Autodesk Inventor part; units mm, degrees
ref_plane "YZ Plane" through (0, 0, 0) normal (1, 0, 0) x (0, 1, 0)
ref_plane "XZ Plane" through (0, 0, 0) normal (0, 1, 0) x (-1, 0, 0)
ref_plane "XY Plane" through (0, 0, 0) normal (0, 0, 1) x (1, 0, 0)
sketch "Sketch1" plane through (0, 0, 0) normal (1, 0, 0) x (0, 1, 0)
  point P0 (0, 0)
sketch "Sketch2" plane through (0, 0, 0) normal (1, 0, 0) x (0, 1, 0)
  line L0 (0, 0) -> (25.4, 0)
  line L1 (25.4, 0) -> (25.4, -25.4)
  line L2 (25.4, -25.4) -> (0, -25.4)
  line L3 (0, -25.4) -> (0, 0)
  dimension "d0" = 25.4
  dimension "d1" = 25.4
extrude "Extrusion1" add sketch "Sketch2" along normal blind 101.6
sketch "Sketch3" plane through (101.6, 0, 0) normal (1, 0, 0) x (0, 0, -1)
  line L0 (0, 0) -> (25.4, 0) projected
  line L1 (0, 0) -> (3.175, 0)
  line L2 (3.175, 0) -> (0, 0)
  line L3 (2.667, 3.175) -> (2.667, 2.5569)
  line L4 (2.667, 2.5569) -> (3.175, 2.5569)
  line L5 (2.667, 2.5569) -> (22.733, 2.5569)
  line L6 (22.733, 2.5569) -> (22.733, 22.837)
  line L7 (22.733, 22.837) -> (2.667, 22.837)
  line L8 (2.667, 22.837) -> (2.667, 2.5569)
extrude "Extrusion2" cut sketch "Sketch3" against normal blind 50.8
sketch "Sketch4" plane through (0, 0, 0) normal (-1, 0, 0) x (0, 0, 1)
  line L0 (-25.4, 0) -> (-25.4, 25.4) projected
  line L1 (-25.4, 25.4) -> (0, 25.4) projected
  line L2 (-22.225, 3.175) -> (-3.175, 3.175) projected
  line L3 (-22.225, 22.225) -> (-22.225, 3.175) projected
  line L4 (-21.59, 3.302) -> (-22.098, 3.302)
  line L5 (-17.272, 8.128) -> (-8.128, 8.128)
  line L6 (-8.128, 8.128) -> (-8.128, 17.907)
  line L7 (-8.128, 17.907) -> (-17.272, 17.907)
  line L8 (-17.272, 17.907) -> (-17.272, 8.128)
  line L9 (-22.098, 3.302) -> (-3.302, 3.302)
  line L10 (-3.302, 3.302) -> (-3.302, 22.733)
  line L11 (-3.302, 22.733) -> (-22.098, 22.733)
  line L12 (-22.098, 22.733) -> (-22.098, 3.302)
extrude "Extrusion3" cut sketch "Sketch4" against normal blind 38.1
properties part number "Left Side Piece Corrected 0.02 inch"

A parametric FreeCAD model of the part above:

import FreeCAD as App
import Part
import Sketcher

V = App.Vector
Q = App.Units.Quantity

doc = App.newDocument("Part")
params = doc.addObject("Spreadsheet::Sheet", "Params")
for row, (alias, value) in enumerate([
    ("sketch1_width", "1 in"),
    ("pad1_length", "4 in"),
    ("sketch2_height", "0.79 in"),
    ("pocket1_length", "2 in"),
    ("sketch3_height", "0.74 in"),
    ("sketch3_height2", "0.36 in"),
    ("sketch3_width", "0.765 in"),
    ("sketch3_width2", "0.385 in"),
    ("pocket2_length", "1.5 in"),
], start=1):
    params.set(f"A{row}", alias)
    params.set(f"B{row}", "=" + value)
    params.setAlias(f"B{row}", alias)

body = doc.addObject("PartDesign::Body", "Body")

sketch1 = body.newObject("Sketcher::SketchObject", "Sketch")
sketch1.AttachmentSupport = (doc.getObject("YZ_Plane"), [""])
sketch1.MapMode = "FlatFace"
sketch1.addGeometry(Part.LineSegment(V(25, 0, 0), V(0, 0, 0)), False)
sketch1.addGeometry(Part.LineSegment(V(0, 0, 0), V(0, -25, 0)), False)
sketch1.addGeometry(Part.LineSegment(V(0, -25, 0), V(25, -25, 0)), False)
sketch1.addGeometry(Part.LineSegment(V(25, -25, 0), V(25, 0, 0)), False)
sketch1.addConstraint(Sketcher.Constraint("Coincident", 0, 2, 1, 1))
sketch1.addConstraint(Sketcher.Constraint("Coincident", 1, 2, 2, 1))
sketch1.addConstraint(Sketcher.Constraint("Coincident", 2, 2, 3, 1))
sketch1.addConstraint(Sketcher.Constraint("Coincident", 3, 2, 0, 1))
sketch1.addConstraint(Sketcher.Constraint("Horizontal", 0))
sketch1.addConstraint(Sketcher.Constraint("Vertical", 1))
sketch1.addConstraint(Sketcher.Constraint("Horizontal", 2))
sketch1.addConstraint(Sketcher.Constraint("Vertical", 3))
sketch1.addConstraint(Sketcher.Constraint("Coincident", 0, 2, -1, 1))
sketch1.addConstraint(Sketcher.Constraint("Equal", 2, 1))
sketch1.addConstraint(Sketcher.Constraint("DistanceX", 0, 2, 0, 1, Q("1 in")))
sketch1.setExpression("Constraints[10]", "Params.sketch1_width")
pad1 = body.newObject("PartDesign::Pad", "Pad")
pad1.Profile = sketch1
pad1.setExpression("Length", "Params.pad1_length")

sketch2 = body.newObject("Sketcher::SketchObject", "Sketch001")
sketch2.AttachmentSupport = (doc.getObject("YZ_Plane"), [""])
sketch2.MapMode = "FlatFace"
sketch2.AttachmentOffset = App.Placement(V(0, 0, 4 * 25.4), App.Rotation())
sketch2.addGeometry(Part.LineSegment(V(23, -3, 0), V(3, -3, 0)), False)
sketch2.addGeometry(Part.LineSegment(V(3, -3, 0), V(3, -23, 0)), False)
sketch2.addGeometry(Part.LineSegment(V(3, -23, 0), V(23, -23, 0)), False)
sketch2.addGeometry(Part.LineSegment(V(23, -23, 0), V(23, -3, 0)), False)
sketch2.addConstraint(Sketcher.Constraint("Coincident", 0, 2, 1, 1))
sketch2.addConstraint(Sketcher.Constraint("Coincident", 1, 2, 2, 1))
sketch2.addConstraint(Sketcher.Constraint("Coincident", 2, 2, 3, 1))
sketch2.addConstraint(Sketcher.Constraint("Coincident", 3, 2, 0, 1))
sketch2.addConstraint(Sketcher.Constraint("Horizontal", 0))
sketch2.addConstraint(Sketcher.Constraint("Vertical", 1))
sketch2.addConstraint(Sketcher.Constraint("Horizontal", 2))
sketch2.addConstraint(Sketcher.Constraint("Vertical", 3))
sketch2.addConstraint(Sketcher.Constraint("DistanceY", 1, 2, 1, 1, Q("0.79 in")))
sketch2.addConstraint(Sketcher.Constraint("DistanceY", 0, 2, -1, 1, Q("0.105 in")))
sketch2.addConstraint(Sketcher.Constraint("DistanceX", 0, 2, 0, 1, Q("20.28 mm")))
sketch2.addConstraint(Sketcher.Constraint("DistanceX", -1, 1, 2, 2, Q("0.8991 in")))
sketch2.setExpression("Constraints[8]", "Params.sketch2_height")
pocket1 = body.newObject("PartDesign::Pocket", "Pocket")
pocket1.Profile = sketch2
pocket1.setExpression("Length", "Params.pocket1_length")

sketch3 = body.newObject("Sketcher::SketchObject", "Sketch002")
sketch3.AttachmentSupport = (doc.getObject("YZ_Plane"), [""])
sketch3.MapMode = "FlatFace"
sketch3.addGeometry(Part.LineSegment(V(3, -22, 0), V(3, -3, 0)), False)
sketch3.addGeometry(Part.LineSegment(V(3, -3, 0), V(23, -3, 0)), False)
sketch3.addGeometry(Part.LineSegment(V(23, -3, 0), V(23, -22, 0)), False)
sketch3.addGeometry(Part.LineSegment(V(23, -22, 0), V(3, -22, 0)), False)
sketch3.addGeometry(Part.LineSegment(V(8, -8, 0), V(8, -17, 0)), False)
sketch3.addGeometry(Part.LineSegment(V(8, -17, 0), V(18, -17, 0)), False)
sketch3.addGeometry(Part.LineSegment(V(18, -17, 0), V(18, -8, 0)), False)
sketch3.addGeometry(Part.LineSegment(V(18, -8, 0), V(8, -8, 0)), False)
sketch3.addConstraint(Sketcher.Constraint("Coincident", 0, 2, 1, 1))
sketch3.addConstraint(Sketcher.Constraint("Coincident", 1, 2, 2, 1))
sketch3.addConstraint(Sketcher.Constraint("Coincident", 2, 2, 3, 1))
sketch3.addConstraint(Sketcher.Constraint("Coincident", 3, 2, 0, 1))
sketch3.addConstraint(Sketcher.Constraint("Coincident", 4, 2, 5, 1))
sketch3.addConstraint(Sketcher.Constraint("Coincident", 5, 2, 6, 1))
sketch3.addConstraint(Sketcher.Constraint("Coincident", 6, 2, 7, 1))
sketch3.addConstraint(Sketcher.Constraint("Coincident", 7, 2, 4, 1))
sketch3.addConstraint(Sketcher.Constraint("Vertical", 0))
sketch3.addConstraint(Sketcher.Constraint("Horizontal", 1))
sketch3.addConstraint(Sketcher.Constraint("Vertical", 2))
sketch3.addConstraint(Sketcher.Constraint("Horizontal", 3))
sketch3.addConstraint(Sketcher.Constraint("Vertical", 4))
sketch3.addConstraint(Sketcher.Constraint("Horizontal", 5))
sketch3.addConstraint(Sketcher.Constraint("Vertical", 6))
sketch3.addConstraint(Sketcher.Constraint("Horizontal", 7))
sketch3.addConstraint(Sketcher.Constraint("DistanceY", 0, 1, 0, 2, Q("0.74 in")))
sketch3.addConstraint(Sketcher.Constraint("DistanceY", 4, 2, 4, 1, Q("0.36 in")))
sketch3.addConstraint(Sketcher.Constraint("DistanceX", 1, 1, 1, 2, Q("0.765 in")))
sketch3.addConstraint(Sketcher.Constraint("DistanceX", 5, 1, 5, 2, Q("0.385 in")))
sketch3.addConstraint(Sketcher.Constraint("DistanceX", -1, 1, 0, 2, Q("0.13 in")))
sketch3.addConstraint(Sketcher.Constraint("DistanceY", 0, 2, -1, 1, Q("0.13 in")))
sketch3.addConstraint(Sketcher.Constraint("DistanceX", -1, 1, 4, 2, Q("0.32 in")))
sketch3.addConstraint(Sketcher.Constraint("DistanceY", 4, 2, -1, 1, Q("0.68 in")))
sketch3.setExpression("Constraints[16]", "Params.sketch3_height")
sketch3.setExpression("Constraints[17]", "Params.sketch3_height2")
sketch3.setExpression("Constraints[18]", "Params.sketch3_width")
sketch3.setExpression("Constraints[19]", "Params.sketch3_width2")
pocket2 = body.newObject("PartDesign::Pocket", "Pocket001")
pocket2.Profile = sketch3
pocket2.setExpression("Length", "Params.pocket2_length")
pocket2.Reversed = True

doc.recompute()
